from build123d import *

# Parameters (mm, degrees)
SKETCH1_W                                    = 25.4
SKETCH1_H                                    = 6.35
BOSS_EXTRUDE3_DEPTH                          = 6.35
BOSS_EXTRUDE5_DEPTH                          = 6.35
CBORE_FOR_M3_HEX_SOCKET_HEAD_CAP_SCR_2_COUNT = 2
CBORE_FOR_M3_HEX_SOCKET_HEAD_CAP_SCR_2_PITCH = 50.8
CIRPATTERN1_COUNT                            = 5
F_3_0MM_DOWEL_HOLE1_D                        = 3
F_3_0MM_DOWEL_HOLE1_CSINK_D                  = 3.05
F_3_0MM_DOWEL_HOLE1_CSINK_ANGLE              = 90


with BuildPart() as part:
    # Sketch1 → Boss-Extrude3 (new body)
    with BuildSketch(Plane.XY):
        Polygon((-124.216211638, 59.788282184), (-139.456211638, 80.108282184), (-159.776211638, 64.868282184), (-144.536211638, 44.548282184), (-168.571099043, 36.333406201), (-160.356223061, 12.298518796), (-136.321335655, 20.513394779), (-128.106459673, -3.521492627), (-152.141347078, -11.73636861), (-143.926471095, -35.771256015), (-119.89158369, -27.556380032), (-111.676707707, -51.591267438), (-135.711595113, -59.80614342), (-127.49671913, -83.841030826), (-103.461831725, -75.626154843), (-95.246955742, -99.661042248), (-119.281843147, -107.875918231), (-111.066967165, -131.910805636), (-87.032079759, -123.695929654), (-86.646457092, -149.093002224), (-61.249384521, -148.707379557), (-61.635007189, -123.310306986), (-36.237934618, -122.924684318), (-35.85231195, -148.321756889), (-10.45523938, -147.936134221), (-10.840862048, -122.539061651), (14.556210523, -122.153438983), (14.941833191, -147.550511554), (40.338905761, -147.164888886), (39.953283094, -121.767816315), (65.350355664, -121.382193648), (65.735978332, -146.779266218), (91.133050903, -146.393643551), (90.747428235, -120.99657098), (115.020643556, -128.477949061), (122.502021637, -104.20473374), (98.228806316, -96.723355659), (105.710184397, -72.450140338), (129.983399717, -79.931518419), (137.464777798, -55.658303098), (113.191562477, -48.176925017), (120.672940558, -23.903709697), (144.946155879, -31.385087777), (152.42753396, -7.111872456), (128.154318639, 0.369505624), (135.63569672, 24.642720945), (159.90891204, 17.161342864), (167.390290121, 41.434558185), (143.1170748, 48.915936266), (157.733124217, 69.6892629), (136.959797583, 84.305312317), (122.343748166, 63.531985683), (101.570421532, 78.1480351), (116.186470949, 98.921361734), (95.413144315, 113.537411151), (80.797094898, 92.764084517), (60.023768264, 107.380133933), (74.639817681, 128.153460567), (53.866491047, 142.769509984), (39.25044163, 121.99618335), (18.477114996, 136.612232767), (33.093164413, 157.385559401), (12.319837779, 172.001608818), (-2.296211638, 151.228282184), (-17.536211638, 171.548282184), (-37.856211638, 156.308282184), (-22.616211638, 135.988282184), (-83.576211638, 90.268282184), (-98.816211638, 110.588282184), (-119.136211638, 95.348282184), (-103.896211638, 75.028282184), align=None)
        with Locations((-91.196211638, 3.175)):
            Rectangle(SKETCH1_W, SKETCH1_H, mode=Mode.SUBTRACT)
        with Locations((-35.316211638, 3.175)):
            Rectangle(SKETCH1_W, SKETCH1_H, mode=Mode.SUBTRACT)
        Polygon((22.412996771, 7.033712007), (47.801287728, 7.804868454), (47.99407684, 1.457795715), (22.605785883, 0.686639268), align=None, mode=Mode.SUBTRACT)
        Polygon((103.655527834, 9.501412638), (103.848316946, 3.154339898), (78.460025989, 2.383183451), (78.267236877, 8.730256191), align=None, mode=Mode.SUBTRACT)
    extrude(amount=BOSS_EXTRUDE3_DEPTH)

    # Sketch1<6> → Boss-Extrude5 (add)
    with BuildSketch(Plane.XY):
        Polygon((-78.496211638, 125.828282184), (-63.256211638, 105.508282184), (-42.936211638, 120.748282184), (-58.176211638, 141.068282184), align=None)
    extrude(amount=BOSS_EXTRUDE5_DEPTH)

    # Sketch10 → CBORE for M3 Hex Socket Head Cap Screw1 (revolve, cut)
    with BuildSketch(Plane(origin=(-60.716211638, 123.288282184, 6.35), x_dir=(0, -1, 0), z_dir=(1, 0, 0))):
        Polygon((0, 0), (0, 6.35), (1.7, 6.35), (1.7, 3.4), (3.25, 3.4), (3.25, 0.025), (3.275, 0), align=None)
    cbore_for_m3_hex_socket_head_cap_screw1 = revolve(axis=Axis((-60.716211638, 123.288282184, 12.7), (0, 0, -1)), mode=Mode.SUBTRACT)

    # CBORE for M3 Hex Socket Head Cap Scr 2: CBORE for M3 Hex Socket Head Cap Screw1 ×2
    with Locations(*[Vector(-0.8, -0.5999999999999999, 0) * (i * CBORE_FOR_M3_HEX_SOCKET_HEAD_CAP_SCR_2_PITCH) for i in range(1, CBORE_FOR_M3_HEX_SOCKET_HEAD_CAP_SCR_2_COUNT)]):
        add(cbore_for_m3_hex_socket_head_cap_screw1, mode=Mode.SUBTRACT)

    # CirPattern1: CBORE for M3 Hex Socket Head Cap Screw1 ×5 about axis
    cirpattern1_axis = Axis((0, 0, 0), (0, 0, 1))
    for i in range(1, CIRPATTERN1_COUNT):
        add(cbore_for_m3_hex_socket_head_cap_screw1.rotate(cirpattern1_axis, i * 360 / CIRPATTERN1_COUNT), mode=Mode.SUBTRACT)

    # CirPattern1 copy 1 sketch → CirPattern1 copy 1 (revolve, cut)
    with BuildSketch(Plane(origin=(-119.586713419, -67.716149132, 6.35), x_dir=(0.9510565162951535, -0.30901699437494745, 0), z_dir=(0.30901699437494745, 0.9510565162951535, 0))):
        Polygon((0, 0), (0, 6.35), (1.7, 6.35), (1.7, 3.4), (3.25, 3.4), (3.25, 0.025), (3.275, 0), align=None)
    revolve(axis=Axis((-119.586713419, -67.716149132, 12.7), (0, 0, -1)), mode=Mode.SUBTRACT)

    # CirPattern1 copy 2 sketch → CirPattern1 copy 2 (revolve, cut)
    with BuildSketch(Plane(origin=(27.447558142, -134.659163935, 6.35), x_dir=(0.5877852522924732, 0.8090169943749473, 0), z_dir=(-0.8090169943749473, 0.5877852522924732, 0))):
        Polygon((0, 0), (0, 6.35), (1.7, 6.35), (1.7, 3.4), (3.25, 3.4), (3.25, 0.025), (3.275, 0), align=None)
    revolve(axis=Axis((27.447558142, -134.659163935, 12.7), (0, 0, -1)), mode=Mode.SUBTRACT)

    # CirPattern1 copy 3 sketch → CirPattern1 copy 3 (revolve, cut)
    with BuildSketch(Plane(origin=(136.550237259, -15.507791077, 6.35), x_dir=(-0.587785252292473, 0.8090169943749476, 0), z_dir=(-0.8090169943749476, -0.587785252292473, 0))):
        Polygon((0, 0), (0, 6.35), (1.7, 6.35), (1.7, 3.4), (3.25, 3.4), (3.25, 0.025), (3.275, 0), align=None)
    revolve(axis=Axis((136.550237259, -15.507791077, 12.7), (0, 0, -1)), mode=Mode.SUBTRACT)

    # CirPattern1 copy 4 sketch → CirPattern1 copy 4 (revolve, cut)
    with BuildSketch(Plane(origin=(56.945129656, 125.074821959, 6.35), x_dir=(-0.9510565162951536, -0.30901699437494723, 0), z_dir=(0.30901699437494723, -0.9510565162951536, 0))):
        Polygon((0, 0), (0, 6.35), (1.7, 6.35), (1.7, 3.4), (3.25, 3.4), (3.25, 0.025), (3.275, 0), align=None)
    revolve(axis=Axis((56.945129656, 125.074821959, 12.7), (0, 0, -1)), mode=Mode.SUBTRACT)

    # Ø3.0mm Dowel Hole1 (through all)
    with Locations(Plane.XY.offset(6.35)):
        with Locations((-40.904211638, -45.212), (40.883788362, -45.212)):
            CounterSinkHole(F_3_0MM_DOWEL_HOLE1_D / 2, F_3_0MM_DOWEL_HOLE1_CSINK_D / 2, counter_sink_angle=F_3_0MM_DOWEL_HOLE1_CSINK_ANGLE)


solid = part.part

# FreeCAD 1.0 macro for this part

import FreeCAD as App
import Part
import Sketcher
Q = App.Units.Quantity


def add_polygon(sketch, points):
    """Adds a closed chain of lines whose ends are joined by coincident constraints."""
    first, n = sketch.GeometryCount, len(points)
    for a, b in zip(points, points[1:] + points[:1]):
        sketch.addGeometry(Part.LineSegment(App.Vector(*a, 0), App.Vector(*b, 0)), False)
    for i in range(n):
        sketch.addConstraint(Sketcher.Constraint("Coincident", first + i, 2, first + (i + 1) % n, 1))

doc = App.newDocument("Part")
body = doc.addObject("PartDesign::Body", "Body")

# Sketch on XY plane
sketch1 = body.newObject("Sketcher::SketchObject", "Sketch")
sketch1.AttachmentSupport = (doc.getObject("XY_Plane"), [""])
sketch1.MapMode = "FlatFace"
add_polygon(sketch1, [(-124, 60), (-139, 80), (-160, 65), (-145, 45), (-169, 36), (-160, 12), (-136, 21), (-128, -4), (-152, -12), (-144, -36), (-120, -28), (-112, -52), (-136, -60), (-127, -84), (-103, -76), (-95, -100), (-119, -108), (-111, -132), (-87, -124), (-87, -149), (-61, -149), (-62, -123), (-36, -123), (-36, -148), (-10, -148), (-11, -123), (15, -122), (15, -148), (40, -147), (40, -122), (65, -121), (66, -147), (91, -146), (91, -121), (115, -128), (123, -104), (98, -97), (106, -72), (130, -80), (137, -56), (113, -48), (121, -24), (145, -31), (152, -7), (128, 0), (136, 25), (160, 17), (167, 41), (143, 49), (158, 70), (137, 84), (122, 64), (102, 78), (116, 99), (95, 114), (81, 93), (60, 107), (75, 128), (54, 143), (39, 122), (18, 137), (33, 157), (12, 172), (-2, 151), (-18, 172), (-38, 156), (-23, 136), (-84, 90), (-99, 111), (-119, 95), (-104, 75)])  # lines 0-70
add_polygon(sketch1, [(-78, 0), (-104, 0), (-104, 6), (-78, 6)])  # lines 71-74
add_polygon(sketch1, [(-23, 0), (-48, 0), (-48, 6), (-23, 6)])  # lines 75-78
add_polygon(sketch1, [(23, 1), (22, 7), (48, 8), (48, 1)])  # lines 79-82
add_polygon(sketch1, [(78, 9), (104, 10), (104, 3), (78, 2)])  # lines 83-86
sketch1.addConstraint([
    Sketcher.Constraint("Horizontal", 71),
    Sketcher.Constraint("Vertical", 72),
    Sketcher.Constraint("Horizontal", 73),
    Sketcher.Constraint("Vertical", 74),
    Sketcher.Constraint("Horizontal", 75),
    Sketcher.Constraint("Vertical", 76),
    Sketcher.Constraint("Horizontal", 77),
    Sketcher.Constraint("Vertical", 78),
    Sketcher.Constraint("PointOnObject", 71, 2, -1),
    Sketcher.Constraint("PointOnObject", 75, 2, -1),
    Sketcher.Constraint("Perpendicular", 0, 1),
    Sketcher.Constraint("Perpendicular", 1, 2),
    Sketcher.Constraint("Perpendicular", 3, 4),
    Sketcher.Constraint("Perpendicular", 4, 5),
    Sketcher.Constraint("Perpendicular", 5, 6),
    Sketcher.Constraint("Perpendicular", 6, 7),
    Sketcher.Constraint("Perpendicular", 7, 8),
    Sketcher.Constraint("Perpendicular", 8, 9),
    Sketcher.Constraint("Perpendicular", 9, 10),
    Sketcher.Constraint("Perpendicular", 10, 11),
    Sketcher.Constraint("Perpendicular", 11, 12),
    Sketcher.Constraint("Perpendicular", 12, 13),
    Sketcher.Constraint("Perpendicular", 13, 14),
    Sketcher.Constraint("Perpendicular", 14, 15),
    Sketcher.Constraint("Perpendicular", 15, 16),
    Sketcher.Constraint("Perpendicular", 16, 17),
    Sketcher.Constraint("Perpendicular", 18, 19),
    Sketcher.Constraint("Perpendicular", 19, 20),
    Sketcher.Constraint("Perpendicular", 20, 21),
    Sketcher.Constraint("Perpendicular", 21, 22),
    Sketcher.Constraint("Perpendicular", 22, 23),
    Sketcher.Constraint("Perpendicular", 23, 24),
    Sketcher.Constraint("Perpendicular", 24, 25),
    Sketcher.Constraint("Perpendicular", 25, 26),
    Sketcher.Constraint("Perpendicular", 26, 27),
    Sketcher.Constraint("Perpendicular", 27, 28),
    Sketcher.Constraint("Perpendicular", 28, 29),
    Sketcher.Constraint("Perpendicular", 29, 30),
    Sketcher.Constraint("Perpendicular", 30, 31),
    Sketcher.Constraint("Perpendicular", 31, 32),
    Sketcher.Constraint("Perpendicular", 33, 34),
    Sketcher.Constraint("Perpendicular", 34, 35),
    Sketcher.Constraint("Perpendicular", 35, 36),
    Sketcher.Constraint("Perpendicular", 36, 37),
    Sketcher.Constraint("Perpendicular", 37, 38),
    Sketcher.Constraint("Perpendicular", 38, 39),
    Sketcher.Constraint("Perpendicular", 39, 40),
    Sketcher.Constraint("Perpendicular", 40, 41),
    Sketcher.Constraint("Perpendicular", 41, 42),
    Sketcher.Constraint("Perpendicular", 42, 43),
    Sketcher.Constraint("Perpendicular", 43, 44),
    Sketcher.Constraint("Perpendicular", 44, 45),
    Sketcher.Constraint("Perpendicular", 45, 46),
    Sketcher.Constraint("Perpendicular", 46, 47),
    Sketcher.Constraint("Perpendicular", 48, 49),
    Sketcher.Constraint("Perpendicular", 49, 50),
    Sketcher.Constraint("Perpendicular", 50, 51),
    Sketcher.Constraint("Perpendicular", 51, 52),
    Sketcher.Constraint("Perpendicular", 52, 53),
    Sketcher.Constraint("Perpendicular", 53, 54),
    Sketcher.Constraint("Perpendicular", 54, 55),
    Sketcher.Constraint("Perpendicular", 55, 56),
    Sketcher.Constraint("Perpendicular", 56, 57),
    Sketcher.Constraint("Perpendicular", 57, 58),
    Sketcher.Constraint("Perpendicular", 58, 59),
    Sketcher.Constraint("Perpendicular", 59, 60),
    Sketcher.Constraint("Perpendicular", 60, 61),
    Sketcher.Constraint("Perpendicular", 61, 62),
    Sketcher.Constraint("Parallel", 2, 63),
    Sketcher.Constraint("Perpendicular", 63, 64),
    Sketcher.Constraint("Perpendicular", 64, 65),
    Sketcher.Constraint("Perpendicular", 65, 66),
    Sketcher.Constraint("Perpendicular", 66, 67),
    Sketcher.Constraint("Perpendicular", 67, 68),
    Sketcher.Constraint("Perpendicular", 68, 69),
    Sketcher.Constraint("Perpendicular", 69, 70),
    Sketcher.Constraint("Perpendicular", 79, 80),
    Sketcher.Constraint("Perpendicular", 80, 81),
    Sketcher.Constraint("Perpendicular", 81, 82),
    Sketcher.Constraint("Parallel", 82, 83),
    Sketcher.Constraint("Perpendicular", 83, 84),
    Sketcher.Constraint("Perpendicular", 84, 85),
    Sketcher.Constraint("Perpendicular", 85, 86),
    Sketcher.Constraint("Horizontal", 73, 2, 76, 2),
    Sketcher.Constraint("Vertical", 69, 2, 71, 2),
    Sketcher.Constraint("Vertical", 65, 2, 77, 2),
    Sketcher.Constraint("Equal", 73, 75),
    Sketcher.Constraint("Equal", 0, 1),
    Sketcher.Constraint("Equal", 1, 2),
    Sketcher.Constraint("Equal", 2, 3),
    Sketcher.Constraint("Equal", 3, 4),
    Sketcher.Constraint("Equal", 4, 5),
    Sketcher.Constraint("Equal", 5, 6),
    Sketcher.Constraint("Equal", 6, 7),
    Sketcher.Constraint("Equal", 7, 8),
    Sketcher.Constraint("Equal", 8, 9),
    Sketcher.Constraint("Equal", 9, 10),
    Sketcher.Constraint("Equal", 10, 11),
    Sketcher.Constraint("Equal", 11, 12),
    Sketcher.Constraint("Equal", 12, 13),
    Sketcher.Constraint("Equal", 13, 14),
    Sketcher.Constraint("Equal", 14, 15),
    Sketcher.Constraint("Equal", 15, 16),
    Sketcher.Constraint("Equal", 16, 17),
    Sketcher.Constraint("Equal", 17, 18),
    Sketcher.Constraint("Equal", 18, 19),
    Sketcher.Constraint("Equal", 19, 20),
    Sketcher.Constraint("Equal", 20, 21),
    Sketcher.Constraint("Equal", 21, 22),
    Sketcher.Constraint("Equal", 22, 23),
    Sketcher.Constraint("Equal", 23, 24),
    Sketcher.Constraint("Equal", 24, 25),
    Sketcher.Constraint("Equal", 25, 26),
    Sketcher.Constraint("Equal", 26, 27),
    Sketcher.Constraint("Equal", 27, 28),
    Sketcher.Constraint("Equal", 28, 29),
    Sketcher.Constraint("Equal", 29, 30),
    Sketcher.Constraint("Equal", 30, 31),
    Sketcher.Constraint("Equal", 31, 32),
    Sketcher.Constraint("Equal", 32, 33),
    Sketcher.Constraint("Equal", 33, 34),
    Sketcher.Constraint("Equal", 34, 35),
    Sketcher.Constraint("Equal", 35, 36),
    Sketcher.Constraint("Equal", 36, 37),
    Sketcher.Constraint("Equal", 37, 38),
    Sketcher.Constraint("Equal", 38, 39),
    Sketcher.Constraint("Equal", 39, 40),
    Sketcher.Constraint("Equal", 40, 41),
    Sketcher.Constraint("Equal", 41, 42),
    Sketcher.Constraint("Equal", 42, 43),
    Sketcher.Constraint("Equal", 43, 44),
    Sketcher.Constraint("Equal", 44, 45),
    Sketcher.Constraint("Equal", 45, 46),
    Sketcher.Constraint("Equal", 46, 47),
    Sketcher.Constraint("Equal", 47, 48),
    Sketcher.Constraint("Equal", 48, 49),
    Sketcher.Constraint("Equal", 49, 50),
    Sketcher.Constraint("Equal", 50, 51),
    Sketcher.Constraint("Equal", 51, 52),
    Sketcher.Constraint("Equal", 52, 53),
    Sketcher.Constraint("Equal", 53, 54),
    Sketcher.Constraint("Equal", 54, 55),
    Sketcher.Constraint("Equal", 55, 56),
    Sketcher.Constraint("Equal", 56, 57),
    Sketcher.Constraint("Equal", 57, 58),
    Sketcher.Constraint("Equal", 58, 59),
    Sketcher.Constraint("Equal", 59, 60),
    Sketcher.Constraint("Equal", 60, 61),
    Sketcher.Constraint("Equal", 61, 62),
    Sketcher.Constraint("Equal", 62, 63),
    Sketcher.Constraint("Equal", 63, 64),
    Sketcher.Constraint("Equal", 64, 65),
    Sketcher.Constraint("Equal", 65, 67),
    Sketcher.Constraint("Equal", 67, 68),
    Sketcher.Constraint("Equal", 68, 69),
    Sketcher.Constraint("Equal", 69, 70),
    Sketcher.Constraint("Equal", 70, 80),
    Sketcher.Constraint("Equal", 82, 83),
    Sketcher.Constraint("Equal", 81, 84),
    Sketcher.Constraint("DistanceX", 71, 2, 71, 1, Q("1 in")),
    Sketcher.Constraint("Distance", 0, Q("1 in")),
    Sketcher.Constraint("Distance", 66, Q("3 in")),
    Sketcher.Constraint("DistanceY", 72, 1, 72, 2, Q("0.25 in")),
    Sketcher.Constraint("Distance", 79, Q("0.25 in")),
    Sketcher.Constraint("DistanceX", 3, 2, -1, 1, 168.571099),
    Sketcher.Constraint("DistanceX", -1, 1, 37, 2, 129.9834),
    Sketcher.Constraint("DistanceX", 0, 2, -1, 1, 139.456212),
    Sketcher.Constraint("DistanceY", -1, 1, 4, 2, 12.298519),
    Sketcher.Constraint("DistanceX", 6, 2, -1, 1, 128.10646),
    Sketcher.Constraint("DistanceY", -1, 1, 80, 2, 7.804868),
    Sketcher.Constraint("DistanceY", -1, 1, 82, 2, 0.686639),
    Sketcher.Constraint("DistanceY", -1, 1, 84, 2, 3.15434),
    Sketcher.Constraint("DistanceX", -1, 1, 79, 2, 22.412997),
    Sketcher.Constraint("DistanceX", -1, 1, 83, 2, 103.655528),
])
pad1 = body.newObject("PartDesign::Pad", "Pad")
pad1.Profile = sketch1
pad1.Length = Q("0.25 in")

# Sketch on XY plane
sketch2 = body.newObject("Sketcher::SketchObject", "Sketch001")
sketch2.AttachmentSupport = (doc.getObject("XY_Plane"), [""])
sketch2.MapMode = "FlatFace"
add_polygon(sketch2, [(-78, 126), (-63, 106), (-43, 121), (-58, 141)])  # lines 0-3
sketch2.addConstraint([
    Sketcher.Constraint("Perpendicular", 0, 1),
    Sketcher.Constraint("Perpendicular", 1, 2),
    Sketcher.Constraint("Perpendicular", 2, 3),
    Sketcher.Constraint("Equal", 0, 1),
    Sketcher.Constraint("Distance", 0, Q("1 in")),
    Sketcher.Constraint("DistanceX", 0, 2, 1, 2, Q("0.8 in")),
    Sketcher.Constraint("DistanceX", 0, 2, -1, 1, 63.256212),
    Sketcher.Constraint("DistanceY", -1, 1, 0, 2, 105.508282),
])
pad2 = body.newObject("PartDesign::Pad", "Pad001")
pad2.Profile = sketch2
pad2.Length = Q("0.25 in")

# Sketch on YZ plane
sketch3 = body.newObject("Sketcher::SketchObject", "Sketch002")
sketch3.AttachmentSupport = (doc.getObject("YZ_Plane"), [""])
sketch3.MapMode = "FlatFace"
sketch3.AttachmentOffset = App.Placement(App.Vector(0, 0, -60.716212), App.Rotation())
add_polygon(sketch3, [(123.288282, 0), (123.288282, 6.35), (120.013282, 6.35), (120.038282, 6.325), (120.038282, 2.95), (121.588282, 2.95), (121.588282, 0)])  # lines 0-6
sketch3.addGeometry(Part.LineSegment(App.Vector(123.288282, 6.35, 0), App.Vector(123.288282, 0, 0)), True)  # axis
sketch3.addConstraint([
    Sketcher.Constraint("Vertical", 0),
    Sketcher.Constraint("Horizontal", 1),
    Sketcher.Constraint("Vertical", 3),
    Sketcher.Constraint("Horizontal", 4),
    Sketcher.Constraint("Vertical", 5),
    Sketcher.Constraint("Horizontal", 6),
    Sketcher.Constraint("Vertical", 7),
    Sketcher.Constraint("Coincident", 7, 1, 0, 2),
    Sketcher.Constraint("PointOnObject", 5, 2, -1),
    Sketcher.Constraint("PointOnObject", 7, 2, -1),
    Sketcher.Constraint("Angle", 2, Q("-45 deg")),
    Sketcher.Constraint("DistanceY", 0, 1, 0, 2, Q("0.25 in")),
    Sketcher.Constraint("DistanceX", 1, 2, 1, 1, 3.275),
    Sketcher.Constraint("DistanceX", 4, 1, 4, 2, 1.55),
    Sketcher.Constraint("DistanceX", 6, 1, 6, 2, 1.7),
    Sketcher.Constraint("DistanceY", 3, 2, 3, 1, 3.375),
    Sketcher.Constraint("DistanceX", -1, 1, 0, 2, 123.288282),
])
groove = body.newObject("PartDesign::Groove", "Groove")
groove.Profile = sketch3
groove.ReferenceAxis = (sketch3, ["Axis0"])
groove.Angle = 360
doc.recompute()

datumline = body.newObject("PartDesign::Line", "DatumLine")
datumline.Placement = App.Placement(App.Vector(0, 0, 0), App.Rotation(App.Vector(0, 0, 1), App.Vector(-0.8, -0.6, 0)))
linearpattern = body.newObject("PartDesign::LinearPattern", "LinearPattern")
linearpattern.Originals = [groove]
linearpattern.Direction = (datumline, [""])
linearpattern.Mode = "offset"
linearpattern.Offset = Q("2 in")
linearpattern.Occurrences = 2
body.Tip = linearpattern
doc.recompute()

polarpattern = body.newObject("PartDesign::PolarPattern", "PolarPattern")
polarpattern.Originals = [groove]
polarpattern.Axis = (doc.getObject("Z_Axis"), [""])
polarpattern.Angle = 360
polarpattern.Occurrences = 5
body.Tip = polarpattern

# Sketch on an angled plane
sketch4 = body.newObject("Sketcher::SketchObject", "Sketch003")
sketch4.Placement = App.Placement(App.Vector(-119.586713, -67.716149, 6.35), App.Rotation(App.Vector(0.951056516, -0.309016994, 0), App.Vector(0, 0, -0.999999999), App.Vector(0.309016994, 0.951056516, 0), "ZXY"))
add_polygon(sketch4, [(0, 6.35), (0, 0), (3.275, 0), (3.25, 0.025), (3.25, 3.4), (1.7, 3.4), (1.7, 6.35)])  # lines 0-6
sketch4.addConstraint([
    Sketcher.Constraint("Vertical", 0),
    Sketcher.Constraint("Horizontal", 1),
    Sketcher.Constraint("Vertical", 3),
    Sketcher.Constraint("Horizontal", 4),
    Sketcher.Constraint("Vertical", 5),
    Sketcher.Constraint("Horizontal", 6),
    Sketcher.Constraint("Coincident", 0, 2, -1, 1),
    Sketcher.Constraint("Angle", 2, Q("135 deg")),
    Sketcher.Constraint("DistanceY", 0, 2, 0, 1, Q("0.25 in")),
    Sketcher.Constraint("DistanceX", 1, 1, 1, 2, 3.275),
    Sketcher.Constraint("DistanceX", 4, 2, 4, 1, 1.55),
    Sketcher.Constraint("DistanceX", 6, 2, 6, 1, 1.7),
    Sketcher.Constraint("DistanceY", 3, 1, 3, 2, 3.375),
])
groove2 = body.newObject("PartDesign::Groove", "Groove001")
groove2.Profile = sketch4
groove2.ReferenceAxis = (sketch4, ["V_Axis"])
groove2.Angle = 360

# Sketch on an angled plane
sketch5 = body.newObject("Sketcher::SketchObject", "Sketch004")
sketch5.Placement = App.Placement(App.Vector(27.447558, -134.659164, 6.35), App.Rotation(App.Vector(0.587785252, 0.809016994, 0), App.Vector(0, 0, -0.999999999), App.Vector(-0.809016994, 0.587785252, 0), "ZXY"))
add_polygon(sketch5, [(0, 6.35), (0, 0), (3.275, 0), (3.25, 0.025), (3.25, 3.4), (1.7, 3.4), (1.7, 6.35)])  # lines 0-6
sketch5.addConstraint([
    Sketcher.Constraint("Vertical", 0),
    Sketcher.Constraint("Horizontal", 1),
    Sketcher.Constraint("Vertical", 3),
    Sketcher.Constraint("Horizontal", 4),
    Sketcher.Constraint("Vertical", 5),
    Sketcher.Constraint("Horizontal", 6),
    Sketcher.Constraint("Coincident", 0, 2, -1, 1),
    Sketcher.Constraint("Angle", 2, Q("135 deg")),
    Sketcher.Constraint("DistanceY", 0, 2, 0, 1, Q("0.25 in")),
    Sketcher.Constraint("DistanceX", 1, 1, 1, 2, 3.275),
    Sketcher.Constraint("DistanceX", 4, 2, 4, 1, 1.55),
    Sketcher.Constraint("DistanceX", 6, 2, 6, 1, 1.7),
    Sketcher.Constraint("DistanceY", 3, 1, 3, 2, 3.375),
])
groove3 = body.newObject("PartDesign::Groove", "Groove002")
groove3.Profile = sketch5
groove3.ReferenceAxis = (sketch5, ["V_Axis"])
groove3.Angle = 360

# Sketch on an angled plane
sketch6 = body.newObject("Sketcher::SketchObject", "Sketch005")
sketch6.Placement = App.Placement(App.Vector(136.550237, -15.507791, 6.35), App.Rotation(App.Vector(-0.587785252, 0.809016994, 0), App.Vector(0, 0, -0.999999999), App.Vector(-0.809016994, -0.587785252, 0), "ZXY"))
add_polygon(sketch6, [(0, 6.35), (0, 0), (3.275, 0), (3.25, 0.025), (3.25, 3.4), (1.7, 3.4), (1.7, 6.35)])  # lines 0-6
sketch6.addConstraint([
    Sketcher.Constraint("Vertical", 0),
    Sketcher.Constraint("Horizontal", 1),
    Sketcher.Constraint("Vertical", 3),
    Sketcher.Constraint("Horizontal", 4),
    Sketcher.Constraint("Vertical", 5),
    Sketcher.Constraint("Horizontal", 6),
    Sketcher.Constraint("Coincident", 0, 2, -1, 1),
    Sketcher.Constraint("Angle", 2, Q("135 deg")),
    Sketcher.Constraint("DistanceY", 0, 2, 0, 1, Q("0.25 in")),
    Sketcher.Constraint("DistanceX", 1, 1, 1, 2, 3.275),
    Sketcher.Constraint("DistanceX", 4, 2, 4, 1, 1.55),
    Sketcher.Constraint("DistanceX", 6, 2, 6, 1, 1.7),
    Sketcher.Constraint("DistanceY", 3, 1, 3, 2, 3.375),
])
groove4 = body.newObject("PartDesign::Groove", "Groove003")
groove4.Profile = sketch6
groove4.ReferenceAxis = (sketch6, ["V_Axis"])
groove4.Angle = 360

# Sketch on an angled plane
sketch7 = body.newObject("Sketcher::SketchObject", "Sketch006")
sketch7.Placement = App.Placement(App.Vector(56.94513, 125.074822, 6.35), App.Rotation(App.Vector(-0.951056516, -0.309016994, 0), App.Vector(0, 0, -0.999999999), App.Vector(0.309016994, -0.951056516, 0), "ZXY"))
add_polygon(sketch7, [(0, 6.35), (0, 0), (3.275, 0), (3.25, 0.025), (3.25, 3.4), (1.7, 3.4), (1.7, 6.35)])  # lines 0-6
sketch7.addConstraint([
    Sketcher.Constraint("Vertical", 0),
    Sketcher.Constraint("Horizontal", 1),
    Sketcher.Constraint("Vertical", 3),
    Sketcher.Constraint("Horizontal", 4),
    Sketcher.Constraint("Vertical", 5),
    Sketcher.Constraint("Horizontal", 6),
    Sketcher.Constraint("Coincident", 0, 2, -1, 1),
    Sketcher.Constraint("Angle", 2, Q("135 deg")),
    Sketcher.Constraint("DistanceY", 0, 2, 0, 1, Q("0.25 in")),
    Sketcher.Constraint("DistanceX", 1, 1, 1, 2, 3.275),
    Sketcher.Constraint("DistanceX", 4, 2, 4, 1, 1.55),
    Sketcher.Constraint("DistanceX", 6, 2, 6, 1, 1.7),
    Sketcher.Constraint("DistanceY", 3, 1, 3, 2, 3.375),
])
groove5 = body.newObject("PartDesign::Groove", "Groove004")
groove5.Profile = sketch7
groove5.ReferenceAxis = (sketch7, ["V_Axis"])
groove5.Angle = 360

# Sketch on XY plane
sketch8 = body.newObject("Sketcher::SketchObject", "Sketch007")
sketch8.AttachmentSupport = (doc.getObject("XY_Plane"), [""])
sketch8.MapMode = "FlatFace"
sketch8.AttachmentOffset = App.Placement(App.Vector(0, 0, 0.25 * 25.4), App.Rotation())
sketch8.addGeometry([
    Part.Circle(App.Vector(-40.9, -45.2, 0), App.Vector(0, 0, 1), 1.5),
    Part.Circle(App.Vector(40.9, -45.2, 0), App.Vector(0, 0, 1), 1.5),
], False)
sketch8.addConstraint([
    Sketcher.Constraint("Equal", 0, 1),
    Sketcher.Constraint("Horizontal", 0, 3, 1, 3),
    Sketcher.Constraint("Diameter", 0, 3.0),
    Sketcher.Constraint("DistanceY", 0, 3, -1, 1, Q("1.78 in")),
    Sketcher.Constraint("DistanceX", 0, 3, 1, 3, Q("3.22 in")),
    Sketcher.Constraint("DistanceX", 0, 3, -1, 1, 40.904212),
])
doc.recompute()
hole = body.newObject("PartDesign::Hole", "Hole")
hole.Profile = sketch8
hole.ThreadType = "None"
hole.Diameter = 3
hole.DepthType = "ThroughAll"
hole.HoleCutType = "Countersink"
hole.HoleCutDiameter = 3.05
hole.HoleCutCountersinkAngle = 90

doc.recompute()
